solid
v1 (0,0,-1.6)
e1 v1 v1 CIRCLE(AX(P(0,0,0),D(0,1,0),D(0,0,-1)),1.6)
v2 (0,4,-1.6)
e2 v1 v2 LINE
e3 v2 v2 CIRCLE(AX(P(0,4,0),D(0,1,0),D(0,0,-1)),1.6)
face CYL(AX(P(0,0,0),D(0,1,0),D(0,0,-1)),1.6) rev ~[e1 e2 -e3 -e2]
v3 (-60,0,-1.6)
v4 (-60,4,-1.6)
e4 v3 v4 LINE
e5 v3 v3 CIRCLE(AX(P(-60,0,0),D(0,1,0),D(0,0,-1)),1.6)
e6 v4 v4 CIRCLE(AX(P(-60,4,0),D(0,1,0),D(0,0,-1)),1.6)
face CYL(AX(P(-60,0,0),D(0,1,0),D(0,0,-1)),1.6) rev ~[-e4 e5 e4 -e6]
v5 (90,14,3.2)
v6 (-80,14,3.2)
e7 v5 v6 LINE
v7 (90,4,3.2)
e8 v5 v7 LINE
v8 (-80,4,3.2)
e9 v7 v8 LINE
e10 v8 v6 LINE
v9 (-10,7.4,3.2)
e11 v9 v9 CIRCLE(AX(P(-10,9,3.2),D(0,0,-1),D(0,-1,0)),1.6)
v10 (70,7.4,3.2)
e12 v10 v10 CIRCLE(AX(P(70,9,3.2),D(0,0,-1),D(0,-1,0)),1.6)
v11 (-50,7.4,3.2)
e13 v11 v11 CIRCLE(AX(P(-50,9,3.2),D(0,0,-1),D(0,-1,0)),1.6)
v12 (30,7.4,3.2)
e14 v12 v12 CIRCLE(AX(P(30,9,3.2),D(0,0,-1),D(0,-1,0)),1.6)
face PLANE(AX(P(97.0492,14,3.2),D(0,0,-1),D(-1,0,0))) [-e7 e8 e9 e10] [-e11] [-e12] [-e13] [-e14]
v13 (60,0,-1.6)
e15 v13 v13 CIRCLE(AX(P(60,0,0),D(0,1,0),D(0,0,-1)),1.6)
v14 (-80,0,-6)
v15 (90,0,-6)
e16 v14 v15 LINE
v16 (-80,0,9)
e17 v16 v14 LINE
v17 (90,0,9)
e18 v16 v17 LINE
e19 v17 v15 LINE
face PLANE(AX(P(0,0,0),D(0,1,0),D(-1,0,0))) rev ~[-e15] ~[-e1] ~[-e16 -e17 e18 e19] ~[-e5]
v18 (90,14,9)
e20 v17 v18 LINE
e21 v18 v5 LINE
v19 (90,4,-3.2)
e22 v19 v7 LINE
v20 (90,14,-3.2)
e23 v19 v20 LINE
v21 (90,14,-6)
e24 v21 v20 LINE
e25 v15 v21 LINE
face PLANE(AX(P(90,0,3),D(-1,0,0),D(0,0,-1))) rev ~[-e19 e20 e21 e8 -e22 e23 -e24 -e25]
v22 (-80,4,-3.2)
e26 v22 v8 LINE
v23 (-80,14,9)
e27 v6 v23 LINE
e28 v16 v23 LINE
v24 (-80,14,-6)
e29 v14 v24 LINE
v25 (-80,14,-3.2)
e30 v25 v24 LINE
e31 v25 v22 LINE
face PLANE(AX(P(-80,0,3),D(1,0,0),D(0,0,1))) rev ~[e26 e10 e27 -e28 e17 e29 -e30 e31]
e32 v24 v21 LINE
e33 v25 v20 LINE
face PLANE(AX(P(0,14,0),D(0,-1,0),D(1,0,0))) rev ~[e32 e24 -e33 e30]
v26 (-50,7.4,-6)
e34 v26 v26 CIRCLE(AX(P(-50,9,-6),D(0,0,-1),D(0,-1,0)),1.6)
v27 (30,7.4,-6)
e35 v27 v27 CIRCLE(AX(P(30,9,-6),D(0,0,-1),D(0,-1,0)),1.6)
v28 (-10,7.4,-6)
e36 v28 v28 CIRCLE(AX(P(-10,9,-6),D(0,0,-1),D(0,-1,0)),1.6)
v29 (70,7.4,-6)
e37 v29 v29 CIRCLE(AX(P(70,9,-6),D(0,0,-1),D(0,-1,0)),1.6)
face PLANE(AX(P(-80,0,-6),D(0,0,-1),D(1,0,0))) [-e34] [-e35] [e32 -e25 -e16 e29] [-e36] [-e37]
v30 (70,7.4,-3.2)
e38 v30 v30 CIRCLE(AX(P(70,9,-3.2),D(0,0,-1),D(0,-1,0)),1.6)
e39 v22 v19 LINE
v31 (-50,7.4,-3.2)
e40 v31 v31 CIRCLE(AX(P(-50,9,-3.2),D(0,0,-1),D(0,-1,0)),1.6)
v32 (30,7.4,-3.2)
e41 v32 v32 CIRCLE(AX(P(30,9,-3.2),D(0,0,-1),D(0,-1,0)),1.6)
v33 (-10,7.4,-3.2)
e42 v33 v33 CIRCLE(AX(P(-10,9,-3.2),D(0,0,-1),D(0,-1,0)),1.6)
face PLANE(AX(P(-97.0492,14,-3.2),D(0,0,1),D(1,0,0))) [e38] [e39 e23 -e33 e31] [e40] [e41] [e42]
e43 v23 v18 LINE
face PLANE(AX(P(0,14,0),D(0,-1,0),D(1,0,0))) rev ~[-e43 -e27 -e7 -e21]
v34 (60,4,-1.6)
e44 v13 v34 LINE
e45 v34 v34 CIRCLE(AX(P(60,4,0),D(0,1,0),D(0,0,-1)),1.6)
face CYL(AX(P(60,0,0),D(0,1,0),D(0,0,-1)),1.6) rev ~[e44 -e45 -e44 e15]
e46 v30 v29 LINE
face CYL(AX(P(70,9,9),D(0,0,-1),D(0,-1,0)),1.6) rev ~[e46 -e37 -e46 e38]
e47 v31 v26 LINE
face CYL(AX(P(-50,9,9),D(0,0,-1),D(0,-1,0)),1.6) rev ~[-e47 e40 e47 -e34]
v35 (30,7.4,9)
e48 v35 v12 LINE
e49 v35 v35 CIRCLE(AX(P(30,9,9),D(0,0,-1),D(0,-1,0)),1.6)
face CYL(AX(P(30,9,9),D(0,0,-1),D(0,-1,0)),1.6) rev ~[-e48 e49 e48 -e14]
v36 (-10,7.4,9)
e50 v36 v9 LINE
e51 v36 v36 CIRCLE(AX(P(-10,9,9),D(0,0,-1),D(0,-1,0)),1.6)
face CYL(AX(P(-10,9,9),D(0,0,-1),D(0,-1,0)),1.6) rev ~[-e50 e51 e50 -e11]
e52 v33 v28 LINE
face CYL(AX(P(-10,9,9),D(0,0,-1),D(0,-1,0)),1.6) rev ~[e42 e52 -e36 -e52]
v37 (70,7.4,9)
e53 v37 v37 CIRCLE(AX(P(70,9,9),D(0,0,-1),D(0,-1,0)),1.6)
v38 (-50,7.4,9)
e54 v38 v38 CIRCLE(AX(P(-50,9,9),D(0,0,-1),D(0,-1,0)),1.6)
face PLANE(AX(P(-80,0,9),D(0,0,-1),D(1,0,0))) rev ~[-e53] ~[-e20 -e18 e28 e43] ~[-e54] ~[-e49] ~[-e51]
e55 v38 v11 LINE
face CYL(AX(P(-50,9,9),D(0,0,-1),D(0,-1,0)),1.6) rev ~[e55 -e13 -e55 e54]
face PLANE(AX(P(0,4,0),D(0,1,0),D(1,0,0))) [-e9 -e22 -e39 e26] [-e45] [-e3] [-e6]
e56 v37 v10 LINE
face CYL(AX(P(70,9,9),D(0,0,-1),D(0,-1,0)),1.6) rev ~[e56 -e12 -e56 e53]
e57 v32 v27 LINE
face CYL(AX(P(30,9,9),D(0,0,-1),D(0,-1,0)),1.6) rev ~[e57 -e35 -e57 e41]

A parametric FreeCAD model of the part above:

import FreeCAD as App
import Part
import Sketcher
from FreeCAD import Vector

doc = App.newDocument("Part")
body = doc.addObject("PartDesign::Body", "Body")

# Sketch on XZ plane
sketch1 = doc.addObject("Sketcher::SketchObject", "Sketch")
body.addObject(sketch1)
sketch1.AttachmentSupport = (doc.XZ_Plane, [""])
sketch1.MapMode = "FlatFace"
sketch1.addGeometry([
    Part.LineSegment(Vector(90, 3, 0), Vector(90, -3, 0)),
    Part.LineSegment(Vector(90, -3, 0), Vector(-90, -3, 0)),
    Part.LineSegment(Vector(-90, -3, 0), Vector(-90, 3, 0)),
    Part.LineSegment(Vector(-90, 3, 0), Vector(90, 3, 0)),
], False)
sketch1.addConstraint([
    Sketcher.Constraint("Coincident", 0, 2, 1, 1),
    Sketcher.Constraint("Coincident", 1, 2, 2, 1),
    Sketcher.Constraint("Coincident", 2, 2, 3, 1),
    Sketcher.Constraint("Coincident", 3, 2, 0, 1),
    Sketcher.Constraint("Vertical", 0),
    Sketcher.Constraint("Horizontal", 1),
    Sketcher.Constraint("Vertical", 2),
    Sketcher.Constraint("Horizontal", 3),
    Sketcher.Constraint("Symmetric", 0, 2, 2, 2, -1, 1),
    Sketcher.Constraint("DistanceX", 1, 2, 1, 1, 180.0),
    Sketcher.Constraint("DistanceY", 0, 2, 0, 1, 6.0),
])
pad1 = doc.addObject("PartDesign::Pad", "Pad")
body.addObject(pad1)
pad1.Profile = sketch1
pad1.Length = 17
pad1.Reversed = True

# Sketch on XZ plane
sketch2 = doc.addObject("Sketcher::SketchObject", "Sketch001")
body.addObject(sketch2)
sketch2.AttachmentSupport = (doc.XZ_Plane, [""])
sketch2.MapMode = "FlatFace"
sketch2.addGeometry([
    Part.LineSegment(Vector(-80, 9, 0), Vector(-80, 3, 0)),  # 0
    Part.LineSegment(Vector(-80, 3, 0), Vector(90, 3, 0)),  # 1
    Part.LineSegment(Vector(90, 3, 0), Vector(90, 9, 0)),  # 2
    Part.LineSegment(Vector(90, 9, 0), Vector(-80, 9, 0)),  # 3
    Part.LineSegment(Vector(90, -6, 0), Vector(90, -3, 0)),  # 4
    Part.LineSegment(Vector(90, -3, 0), Vector(-80, -3, 0)),  # 5
    Part.LineSegment(Vector(-80, -3, 0), Vector(-80, -6, 0)),  # 6
    Part.LineSegment(Vector(-80, -6, 0), Vector(90, -6, 0)),  # 7
], False)
sketch2.addConstraint([
    Sketcher.Constraint("Coincident", 0, 2, 1, 1),
    Sketcher.Constraint("Coincident", 1, 2, 2, 1),
    Sketcher.Constraint("Coincident", 2, 2, 3, 1),
    Sketcher.Constraint("Coincident", 3, 2, 0, 1),
    Sketcher.Constraint("Coincident", 4, 2, 5, 1),
    Sketcher.Constraint("Coincident", 5, 2, 6, 1),
    Sketcher.Constraint("Coincident", 6, 2, 7, 1),
    Sketcher.Constraint("Coincident", 7, 2, 4, 1),
    Sketcher.Constraint("Vertical", 0),
    Sketcher.Constraint("Horizontal", 1),
    Sketcher.Constraint("Vertical", 2),
    Sketcher.Constraint("Horizontal", 3),
    Sketcher.Constraint("Vertical", 4),
    Sketcher.Constraint("Horizontal", 5),
    Sketcher.Constraint("Vertical", 6),
    Sketcher.Constraint("Horizontal", 7),
    Sketcher.Constraint("Symmetric", 1, 2, 4, 2, -1),
    Sketcher.Constraint("Vertical", 3, 2, 5, 2),
    Sketcher.Constraint("DistanceX", 1, 1, 1, 2, 170.0),
    Sketcher.Constraint("DistanceY", 0, 2, 0, 1, 6.0),
    Sketcher.Constraint("DistanceY", 4, 1, 4, 2, 3.0),
    Sketcher.Constraint("DistanceY", -1, 1, 0, 2, 3.0),
    Sketcher.Constraint("DistanceX", 0, 2, -1, 1, 80.0),
])
pad2 = doc.addObject("PartDesign::Pad", "Pad001")
body.addObject(pad2)
pad2.Profile = sketch2
pad2.Length = 14
pad2.Reversed = True

# Sketch on XZ plane
sketch3 = doc.addObject("Sketcher::SketchObject", "Sketch002")
body.addObject(sketch3)
sketch3.AttachmentSupport = (doc.XZ_Plane, [""])
sketch3.MapMode = "FlatFace"
sketch3.AttachmentOffset = App.Placement(Vector(0, 0, -17), App.Rotation())
sketch3.addGeometry([
    Part.LineSegment(Vector(90, -3, 0), Vector(-90, -3, 0)),
    Part.LineSegment(Vector(-90, -3, 0), Vector(-90, 3, 0)),
    Part.LineSegment(Vector(-90, 3, 0), Vector(90, 3, 0)),
    Part.LineSegment(Vector(90, 3, 0), Vector(90, -3, 0)),
], False)
sketch3.addConstraint([
    Sketcher.Constraint("Coincident", 0, 2, 1, 1),
    Sketcher.Constraint("Coincident", 1, 2, 2, 1),
    Sketcher.Constraint("Coincident", 2, 2, 3, 1),
    Sketcher.Constraint("Coincident", 3, 2, 0, 1),
    Sketcher.Constraint("Horizontal", 0),
    Sketcher.Constraint("Vertical", 1),
    Sketcher.Constraint("Horizontal", 2),
    Sketcher.Constraint("Vertical", 3),
    Sketcher.Constraint("Symmetric", 0, 2, 2, 2, -1, 1),
    Sketcher.Constraint("DistanceX", 0, 2, 0, 1, 180.0),
    Sketcher.Constraint("DistanceY", 1, 1, 1, 2, 6.0),
])
pocket1 = doc.addObject("PartDesign::Pocket", "Pocket")
body.addObject(pocket1)
pocket1.Profile = sketch3
pocket1.Length = 13
pocket1.Reversed = True

# Sketch on XZ plane
sketch4 = doc.addObject("Sketcher::SketchObject", "Sketch003")
body.addObject(sketch4)
sketch4.AttachmentSupport = (doc.XZ_Plane, [""])
sketch4.MapMode = "FlatFace"
sketch4.AttachmentOffset = App.Placement(Vector(0, 0, -4), App.Rotation())
sketch4.addGeometry([
    Part.LineSegment(Vector(-90, -3, 0), Vector(-90, 3, 0)),
    Part.LineSegment(Vector(-90, 3, 0), Vector(-80, 3, 0)),
    Part.LineSegment(Vector(-80, 3, 0), Vector(-80, -3, 0)),
    Part.LineSegment(Vector(-80, -3, 0), Vector(-90, -3, 0)),
], False)
sketch4.addConstraint([
    Sketcher.Constraint("Coincident", 0, 2, 1, 1),
    Sketcher.Constraint("Coincident", 1, 2, 2, 1),
    Sketcher.Constraint("Coincident", 2, 2, 3, 1),
    Sketcher.Constraint("Coincident", 3, 2, 0, 1),
    Sketcher.Constraint("Vertical", 0),
    Sketcher.Constraint("Horizontal", 1),
    Sketcher.Constraint("Vertical", 2),
    Sketcher.Constraint("Horizontal", 3),
    Sketcher.Constraint("DistanceX", 1, 1, 1, 2, 10.0),
    Sketcher.Constraint("DistanceY", 0, 1, 0, 2, 6.0),
    Sketcher.Constraint("DistanceX", 0, 2, -1, 1, 90.0),
    Sketcher.Constraint("DistanceY", -1, 1, 0, 2, 3.0),
])
pocket2 = doc.addObject("PartDesign::Pocket", "Pocket001")
body.addObject(pocket2)
pocket2.Profile = sketch4
pocket2.Length = 13
pocket2.Reversed = True

# Sketch on XZ plane
sketch5 = doc.addObject("Sketcher::SketchObject", "Sketch004")
body.addObject(sketch5)
sketch5.AttachmentSupport = (doc.XZ_Plane, [""])
sketch5.MapMode = "FlatFace"
sketch5.AttachmentOffset = App.Placement(Vector(0, 0, -14), App.Rotation())
sketch5.addGeometry([
    Part.LineSegment(Vector(-97, 3, 0), Vector(97, 3, 0)),
    Part.LineSegment(Vector(97, 3, 0), Vector(97, -3, 0)),
    Part.LineSegment(Vector(97, -3, 0), Vector(-97, -3, 0)),
    Part.LineSegment(Vector(-97, -3, 0), Vector(-97, 3, 0)),
], False)
sketch5.addConstraint([
    Sketcher.Constraint("Coincident", 0, 2, 1, 1),
    Sketcher.Constraint("Coincident", 1, 2, 2, 1),
    Sketcher.Constraint("Coincident", 2, 2, 3, 1),
    Sketcher.Constraint("Coincident", 3, 2, 0, 1),
    Sketcher.Constraint("Horizontal", 0),
    Sketcher.Constraint("Vertical", 1),
    Sketcher.Constraint("Horizontal", 2),
    Sketcher.Constraint("Vertical", 3),
    Sketcher.Constraint("Symmetric", 0, 2, 2, 2, -1, 1),
    Sketcher.Constraint("DistanceY", 1, 2, 1, 1, 6.4),
    Sketcher.Constraint("DistanceX", 0, 1, 0, 2, 194.0984),
])
pocket3 = doc.addObject("PartDesign::Pocket", "Pocket002")
body.addObject(pocket3)
pocket3.Profile = sketch5
pocket3.Length = 10
pocket3.Reversed = True

# Sketch on XY plane
sketch6 = doc.addObject("Sketcher::SketchObject", "Sketch005")
body.addObject(sketch6)
sketch6.AttachmentSupport = (doc.XY_Plane, [""])
sketch6.MapMode = "FlatFace"
sketch6.AttachmentOffset = App.Placement(Vector(0, 0, 9), App.Rotation())
sketch6.addGeometry([
    Part.Circle(Vector(70, 9, 0), Vector(0, 0, 1), 1.6),
    Part.Circle(Vector(30, 9, 0), Vector(0, 0, 1), 1.6),
    Part.Circle(Vector(-10, 9, 0), Vector(0, 0, 1), 1.6),
    Part.Circle(Vector(-50, 9, 0), Vector(0, 0, 1), 1.6),
], False)
sketch6.addConstraint([
    Sketcher.Constraint("Equal", 0, 1),
    Sketcher.Constraint("Equal", 1, 2),
    Sketcher.Constraint("Equal", 2, 3),
    Sketcher.Constraint("Horizontal", 0, 3, 1, 3),
    Sketcher.Constraint("Horizontal", 1, 3, 2, 3),
    Sketcher.Constraint("Horizontal", 2, 3, 3, 3),
    Sketcher.Constraint("Diameter", 0, 3.2),
    Sketcher.Constraint("DistanceX", -1, 1, 0, 3, 70.0),
    Sketcher.Constraint("DistanceY", -1, 1, 0, 3, 9.0),
    Sketcher.Constraint("DistanceX", -1, 1, 1, 3, 30.0),
    Sketcher.Constraint("DistanceX", 2, 3, -1, 1, 10.0),
    Sketcher.Constraint("DistanceX", 3, 3, -1, 1, 50.0),
])
doc.recompute()
hole = doc.addObject("PartDesign::Hole", "Hole")
body.addObject(hole)
hole.Profile = sketch6
hole.ThreadType = "None"
hole.Diameter = 3.2
hole.DepthType = "ThroughAll"

# Sketch on XZ plane
sketch7 = doc.addObject("Sketcher::SketchObject", "Sketch006")
body.addObject(sketch7)
sketch7.AttachmentSupport = (doc.XZ_Plane, [""])
sketch7.MapMode = "FlatFace"
sketch7.addGeometry([
    Part.Circle(Vector(60, 0, 0), Vector(0, 0, 1), 1.6),
    Part.Circle(Vector(0, 0, 0), Vector(0, 0, 1), 1.6),
    Part.Circle(Vector(-60, 0, 0), Vector(0, 0, 1), 1.6),
], False)
sketch7.addConstraint([
    Sketcher.Constraint("Coincident", 1, 3, -1, 1),
    Sketcher.Constraint("Equal", 0, 1),
    Sketcher.Constraint("Equal", 1, 2),
    Sketcher.Constraint("Symmetric", 0, 3, 2, 3, -1, 1),
    Sketcher.Constraint("PointOnObject", 0, 3, -1),
    Sketcher.Constraint("Diameter", 0, 3.2),
    Sketcher.Constraint("DistanceX", -1, 1, 0, 3, 60.0),
])
doc.recompute()
hole2 = doc.addObject("PartDesign::Hole", "Hole001")
body.addObject(hole2)
hole2.Profile = sketch7
hole2.ThreadType = "None"
hole2.Diameter = 3.2
hole2.DepthType = "ThroughAll"

doc.recompute()
